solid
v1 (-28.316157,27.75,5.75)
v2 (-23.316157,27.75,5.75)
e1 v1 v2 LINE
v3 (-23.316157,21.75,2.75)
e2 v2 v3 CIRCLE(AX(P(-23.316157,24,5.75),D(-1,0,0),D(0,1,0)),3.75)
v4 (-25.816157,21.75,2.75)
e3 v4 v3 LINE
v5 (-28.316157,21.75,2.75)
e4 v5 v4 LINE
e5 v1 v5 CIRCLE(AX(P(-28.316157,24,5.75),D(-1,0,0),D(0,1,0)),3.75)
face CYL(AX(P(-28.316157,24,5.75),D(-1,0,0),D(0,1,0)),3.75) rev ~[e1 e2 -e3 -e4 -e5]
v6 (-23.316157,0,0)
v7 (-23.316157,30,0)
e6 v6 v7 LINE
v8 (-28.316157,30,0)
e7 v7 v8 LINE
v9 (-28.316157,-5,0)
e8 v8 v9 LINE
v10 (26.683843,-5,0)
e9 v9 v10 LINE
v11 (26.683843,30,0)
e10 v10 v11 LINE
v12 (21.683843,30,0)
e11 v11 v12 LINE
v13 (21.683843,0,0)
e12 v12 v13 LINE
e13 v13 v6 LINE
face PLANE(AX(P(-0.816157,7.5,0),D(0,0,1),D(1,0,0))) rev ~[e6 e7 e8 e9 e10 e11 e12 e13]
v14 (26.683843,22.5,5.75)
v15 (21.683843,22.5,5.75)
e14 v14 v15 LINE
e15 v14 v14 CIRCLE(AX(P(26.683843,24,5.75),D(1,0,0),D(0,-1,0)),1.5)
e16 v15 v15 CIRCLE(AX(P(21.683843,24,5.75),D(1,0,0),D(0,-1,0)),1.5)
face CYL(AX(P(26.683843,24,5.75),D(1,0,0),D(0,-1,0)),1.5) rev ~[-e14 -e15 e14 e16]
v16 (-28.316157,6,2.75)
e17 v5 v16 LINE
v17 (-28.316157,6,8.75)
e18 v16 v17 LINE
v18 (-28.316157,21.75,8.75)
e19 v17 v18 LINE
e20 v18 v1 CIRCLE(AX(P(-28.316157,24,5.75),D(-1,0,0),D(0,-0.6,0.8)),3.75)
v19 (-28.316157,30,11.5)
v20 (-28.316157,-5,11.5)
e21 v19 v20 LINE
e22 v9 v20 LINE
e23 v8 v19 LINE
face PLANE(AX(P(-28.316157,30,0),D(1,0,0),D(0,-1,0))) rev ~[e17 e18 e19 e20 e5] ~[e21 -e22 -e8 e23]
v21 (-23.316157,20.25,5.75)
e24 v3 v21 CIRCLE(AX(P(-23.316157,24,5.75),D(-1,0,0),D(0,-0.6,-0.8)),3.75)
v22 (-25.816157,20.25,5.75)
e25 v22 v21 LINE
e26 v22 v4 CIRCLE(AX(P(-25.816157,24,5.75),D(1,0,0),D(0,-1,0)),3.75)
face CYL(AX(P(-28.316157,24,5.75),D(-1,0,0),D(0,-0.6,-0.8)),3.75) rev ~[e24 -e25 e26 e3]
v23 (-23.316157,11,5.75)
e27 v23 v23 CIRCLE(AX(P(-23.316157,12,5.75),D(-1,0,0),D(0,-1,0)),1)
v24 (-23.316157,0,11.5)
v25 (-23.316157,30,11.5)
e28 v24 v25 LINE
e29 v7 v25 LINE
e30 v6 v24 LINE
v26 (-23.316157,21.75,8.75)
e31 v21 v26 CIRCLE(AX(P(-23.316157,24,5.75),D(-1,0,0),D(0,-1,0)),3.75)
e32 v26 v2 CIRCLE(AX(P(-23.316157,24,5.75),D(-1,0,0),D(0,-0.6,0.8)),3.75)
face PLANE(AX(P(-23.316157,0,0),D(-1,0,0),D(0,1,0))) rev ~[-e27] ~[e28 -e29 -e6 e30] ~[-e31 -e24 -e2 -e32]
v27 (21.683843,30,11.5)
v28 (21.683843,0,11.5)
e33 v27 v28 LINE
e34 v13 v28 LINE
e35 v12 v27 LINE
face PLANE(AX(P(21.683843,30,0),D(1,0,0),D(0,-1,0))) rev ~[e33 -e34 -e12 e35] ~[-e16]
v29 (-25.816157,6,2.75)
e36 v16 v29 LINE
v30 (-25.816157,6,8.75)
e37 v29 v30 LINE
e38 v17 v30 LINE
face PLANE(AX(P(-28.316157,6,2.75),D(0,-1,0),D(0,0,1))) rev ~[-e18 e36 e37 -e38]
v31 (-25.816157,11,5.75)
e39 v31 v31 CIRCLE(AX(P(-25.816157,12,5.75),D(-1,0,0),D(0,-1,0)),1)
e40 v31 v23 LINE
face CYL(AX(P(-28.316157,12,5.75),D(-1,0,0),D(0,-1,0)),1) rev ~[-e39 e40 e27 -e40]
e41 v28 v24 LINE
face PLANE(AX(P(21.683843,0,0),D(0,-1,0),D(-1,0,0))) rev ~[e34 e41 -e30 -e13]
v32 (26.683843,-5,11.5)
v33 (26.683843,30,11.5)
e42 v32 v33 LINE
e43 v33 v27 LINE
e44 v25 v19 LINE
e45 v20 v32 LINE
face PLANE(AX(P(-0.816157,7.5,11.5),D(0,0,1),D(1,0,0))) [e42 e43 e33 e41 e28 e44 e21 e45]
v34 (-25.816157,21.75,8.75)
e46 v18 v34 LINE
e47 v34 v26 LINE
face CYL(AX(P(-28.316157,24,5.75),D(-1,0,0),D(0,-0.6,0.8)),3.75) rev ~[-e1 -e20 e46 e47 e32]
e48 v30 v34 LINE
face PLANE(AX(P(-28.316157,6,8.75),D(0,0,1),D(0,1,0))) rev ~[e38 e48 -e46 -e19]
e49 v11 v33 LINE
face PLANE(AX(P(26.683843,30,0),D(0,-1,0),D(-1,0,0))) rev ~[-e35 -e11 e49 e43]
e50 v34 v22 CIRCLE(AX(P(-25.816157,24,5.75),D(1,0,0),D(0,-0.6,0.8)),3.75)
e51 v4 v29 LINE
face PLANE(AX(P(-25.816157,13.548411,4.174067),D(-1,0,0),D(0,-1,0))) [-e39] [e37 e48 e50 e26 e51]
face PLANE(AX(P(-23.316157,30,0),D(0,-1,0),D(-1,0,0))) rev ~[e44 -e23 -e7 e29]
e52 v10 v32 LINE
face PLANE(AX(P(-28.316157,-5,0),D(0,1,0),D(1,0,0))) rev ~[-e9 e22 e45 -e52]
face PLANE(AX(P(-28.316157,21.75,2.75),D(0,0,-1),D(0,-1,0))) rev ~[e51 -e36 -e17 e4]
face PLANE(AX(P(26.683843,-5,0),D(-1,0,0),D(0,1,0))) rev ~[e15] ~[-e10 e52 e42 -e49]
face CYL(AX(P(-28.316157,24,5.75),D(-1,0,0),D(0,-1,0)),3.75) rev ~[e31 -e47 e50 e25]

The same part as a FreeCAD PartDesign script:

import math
import FreeCAD as App
import Part
import Sketcher

doc = App.newDocument("Part")
params = doc.addObject("Spreadsheet::Sheet", "Params")
for row, (alias, value) in enumerate([
    ("sketch1_width", "45 mm"),
    ("sketch1_width2", "5 mm"),
    ("sketch1_height", "30 mm"),
    ("sketch1_height2", "35 mm"),
    ("pad1_length", "11.5 mm"),
    ("sketch2_diameter", "2 mm"),
    ("sketch2_radius", "3.75 mm"),
    ("pocket1_length", "25 mm"),
    ("sketch3_diameter", "2 mm"),
    ("sketch3_height", "6 mm"),
    ("sketch3_radius", "3.75 mm"),
    ("pocket2_length", "2.5 mm"),
    ("sketch4_diameter", "3 mm"),
    ("pocket3_length", "25 mm"),
], start=1):
    params.set(f"A{row}", alias)
    params.set(f"B{row}", "=" + value)
    params.setAlias(f"B{row}", alias)

body = doc.addObject("PartDesign::Body", "Body")

sketch1 = body.newObject("Sketcher::SketchObject", "Sketch")
sketch1.AttachmentSupport = (doc.getObject("XY_Plane"), [""])
sketch1.MapMode = "FlatFace"
sketch1.addGeometry(Part.LineSegment(App.Vector(22, 0, 0), App.Vector(-23, 0, 0)), False)
sketch1.addGeometry(Part.LineSegment(App.Vector(-23, 0, 0), App.Vector(-23, 30, 0)), False)
sketch1.addGeometry(Part.LineSegment(App.Vector(-23, 30, 0), App.Vector(-28, 30, 0)), False)
sketch1.addGeometry(Part.LineSegment(App.Vector(-28, 30, 0), App.Vector(-28, -5, 0)), False)
sketch1.addGeometry(Part.LineSegment(App.Vector(-28, -5, 0), App.Vector(27, -5, 0)), False)
sketch1.addGeometry(Part.LineSegment(App.Vector(27, -5, 0), App.Vector(27, 30, 0)), False)
sketch1.addGeometry(Part.LineSegment(App.Vector(27, 30, 0), App.Vector(22, 30, 0)), False)
sketch1.addGeometry(Part.LineSegment(App.Vector(22, 30, 0), App.Vector(22, 0, 0)), False)
sketch1.addConstraint(Sketcher.Constraint("Coincident", 0, 2, 1, 1))
sketch1.addConstraint(Sketcher.Constraint("Coincident", 1, 2, 2, 1))
sketch1.addConstraint(Sketcher.Constraint("Coincident", 2, 2, 3, 1))
sketch1.addConstraint(Sketcher.Constraint("Coincident", 3, 2, 4, 1))
sketch1.addConstraint(Sketcher.Constraint("Coincident", 4, 2, 5, 1))
sketch1.addConstraint(Sketcher.Constraint("Coincident", 5, 2, 6, 1))
sketch1.addConstraint(Sketcher.Constraint("Coincident", 6, 2, 7, 1))
sketch1.addConstraint(Sketcher.Constraint("Coincident", 7, 2, 0, 1))
sketch1.addConstraint(Sketcher.Constraint("Horizontal", 0))
sketch1.addConstraint(Sketcher.Constraint("Vertical", 1))
sketch1.addConstraint(Sketcher.Constraint("Horizontal", 2))
sketch1.addConstraint(Sketcher.Constraint("Vertical", 3))
sketch1.addConstraint(Sketcher.Constraint("Horizontal", 4))
sketch1.addConstraint(Sketcher.Constraint("Vertical", 5))
sketch1.addConstraint(Sketcher.Constraint("Horizontal", 6))
sketch1.addConstraint(Sketcher.Constraint("Vertical", 7))
sketch1.addConstraint(Sketcher.Constraint("PointOnObject", 0, 2, -1))
sketch1.addConstraint(Sketcher.Constraint("Horizontal", 2, 2, 5, 2))
sketch1.addConstraint(Sketcher.Constraint("Equal", 2, 6))
sketch1.addConstraint(Sketcher.Constraint("DistanceX", 0, 2, 0, 1, 45.0))
sketch1.addConstraint(Sketcher.Constraint("DistanceX", 2, 2, 2, 1, 5.0))
sketch1.addConstraint(Sketcher.Constraint("DistanceY", 1, 1, 1, 2, 30.0))
sketch1.addConstraint(Sketcher.Constraint("DistanceY", 3, 2, 3, 1, 35.0))
sketch1.addConstraint(Sketcher.Constraint("DistanceX", 0, 2, -1, 1, 23.316157))
sketch1.setExpression("Constraints[19]", "Params.sketch1_width")
sketch1.setExpression("Constraints[20]", "Params.sketch1_width2")
sketch1.setExpression("Constraints[21]", "Params.sketch1_height")
sketch1.setExpression("Constraints[22]", "Params.sketch1_height2")
pad1 = body.newObject("PartDesign::Pad", "Pad")
pad1.Profile = sketch1
pad1.setExpression("Length", "Params.pad1_length")

sketch2 = body.newObject("Sketcher::SketchObject", "Sketch001")
sketch2.AttachmentSupport = (doc.getObject("YZ_Plane"), [""])
sketch2.MapMode = "FlatFace"
sketch2.AttachmentOffset = App.Placement(App.Vector(0, 0, -28.316157), App.Rotation())
sketch2.addGeometry(Part.ArcOfCircle(Part.Circle(App.Vector(24, 5.8, 0), App.Vector(0, 0, 1), 3.8), math.radians(180), math.radians(233)), False)
sketch2.addGeometry(Part.ArcOfCircle(Part.Circle(App.Vector(24, 5.8, 0), App.Vector(0, 0, 1), 3.8), math.radians(127), math.radians(180)), False)
sketch2.addGeometry(Part.ArcOfCircle(Part.Circle(App.Vector(24, 5.8, 0), App.Vector(0, 0, 1), 3.8), math.radians(0), math.radians(127)), False)
sketch2.addGeometry(Part.ArcOfCircle(Part.Circle(App.Vector(24, 5.8, 0), App.Vector(0, 0, 1), 3.8), math.radians(-127), math.radians(0)), False)
sketch2.addGeometry(Part.Circle(App.Vector(12, 5.8, 0), App.Vector(0, 0, 1), 1), False)
sketch2.addConstraint(Sketcher.Constraint("Tangent", 0, 1, 1, 2))
sketch2.addConstraint(Sketcher.Constraint("Tangent", 1, 1, 2, 2))
sketch2.addConstraint(Sketcher.Constraint("Tangent", 2, 1, 3, 2))
sketch2.addConstraint(Sketcher.Constraint("Tangent", 3, 1, 0, 2))
sketch2.addConstraint(Sketcher.Constraint("Equal", 0, 1))
sketch2.addConstraint(Sketcher.Constraint("Horizontal", 3, 3, 4, 3))
sketch2.addConstraint(Sketcher.Constraint("Horizontal", 4, 3, 0, 1))
sketch2.addConstraint(Sketcher.Constraint("Horizontal", 0, 1, 2, 1))
sketch2.addConstraint(Sketcher.Constraint("Vertical", 1, 1, 3, 1))
sketch2.addConstraint(Sketcher.Constraint("Diameter", 4, 2.0))
sketch2.addConstraint(Sketcher.Constraint("Radius", 0, 3.75))
sketch2.addConstraint(Sketcher.Constraint("DistanceX", -1, 1, 0, 3, 24.0))
sketch2.addConstraint(Sketcher.Constraint("DistanceX", -1, 1, 4, 3, 12.0))
sketch2.addConstraint(Sketcher.Constraint("DistanceY", 0, 1, 1, 1, 3.0))
sketch2.addConstraint(Sketcher.Constraint("DistanceY", -1, 1, 0, 3, 5.75))
sketch2.setExpression("Constraints[9]", "Params.sketch2_diameter")
sketch2.setExpression("Constraints[10]", "Params.sketch2_radius")
pocket1 = body.newObject("PartDesign::Pocket", "Pocket")
pocket1.Profile = sketch2
pocket1.setExpression("Length", "Params.pocket1_length")
pocket1.Reversed = True

sketch3 = body.newObject("Sketcher::SketchObject", "Sketch002")
sketch3.AttachmentSupport = (doc.getObject("YZ_Plane"), [""])
sketch3.MapMode = "FlatFace"
sketch3.AttachmentOffset = App.Placement(App.Vector(0, 0, -28.316157), App.Rotation())
sketch3.addGeometry(Part.ArcOfCircle(Part.Circle(App.Vector(24, 5.8, 0), App.Vector(0, 0, 1), 3.8), math.radians(180), math.radians(233)), False)
sketch3.addGeometry(Part.LineSegment(App.Vector(21.8, 2.8, 0), App.Vector(6, 2.8, 0)), False)
sketch3.addGeometry(Part.LineSegment(App.Vector(6, 2.8, 0), App.Vector(6, 8.8, 0)), False)
sketch3.addGeometry(Part.LineSegment(App.Vector(6, 8.8, 0), App.Vector(21.8, 8.8, 0)), False)
sketch3.addGeometry(Part.ArcOfCircle(Part.Circle(App.Vector(24, 5.8, 0), App.Vector(0, 0, 1), 3.8), math.radians(127), math.radians(180)), False)
sketch3.addGeometry(Part.Circle(App.Vector(12, 5.8, 0), App.Vector(0, 0, 1), 1), False)
sketch3.addConstraint(Sketcher.Constraint("Coincident", 0, 2, 1, 1))
sketch3.addConstraint(Sketcher.Constraint("Coincident", 1, 2, 2, 1))
sketch3.addConstraint(Sketcher.Constraint("Coincident", 2, 2, 3, 1))
sketch3.addConstraint(Sketcher.Constraint("Coincident", 3, 2, 4, 1))
sketch3.addConstraint(Sketcher.Constraint("Tangent", 4, 2, 0, 1))
sketch3.addConstraint(Sketcher.Constraint("Horizontal", 1))
sketch3.addConstraint(Sketcher.Constraint("Vertical", 2))
sketch3.addConstraint(Sketcher.Constraint("Horizontal", 3))
sketch3.addConstraint(Sketcher.Constraint("Equal", 0, 4))
sketch3.addConstraint(Sketcher.Constraint("Horizontal", 4, 3, 5, 3))
sketch3.addConstraint(Sketcher.Constraint("Horizontal", 5, 3, 4, 2))
sketch3.addConstraint(Sketcher.Constraint("Vertical", 0, 2, 3, 2))
sketch3.addConstraint(Sketcher.Constraint("Diameter", 5, 2.0))
sketch3.addConstraint(Sketcher.Constraint("DistanceY", 2, 1, 2, 2, 6.0))
sketch3.addConstraint(Sketcher.Constraint("Radius", 0, 3.75))
sketch3.addConstraint(Sketcher.Constraint("DistanceX", -1, 1, 0, 3, 24.0))
sketch3.addConstraint(Sketcher.Constraint("DistanceX", -1, 1, 5, 3, 12.0))
sketch3.addConstraint(Sketcher.Constraint("DistanceX", -1, 1, 1, 2, 6.0))
sketch3.addConstraint(Sketcher.Constraint("DistanceY", -1, 1, 0, 3, 5.75))
sketch3.setExpression("Constraints[12]", "Params.sketch3_diameter")
sketch3.setExpression("Constraints[13]", "Params.sketch3_height")
sketch3.setExpression("Constraints[14]", "Params.sketch3_radius")
pocket2 = body.newObject("PartDesign::Pocket", "Pocket001")
pocket2.Profile = sketch3
pocket2.setExpression("Length", "Params.pocket2_length")
pocket2.Reversed = True

sketch4 = body.newObject("Sketcher::SketchObject", "Sketch003")
sketch4.AttachmentSupport = (doc.getObject("YZ_Plane"), [""])
sketch4.MapMode = "FlatFace"
sketch4.AttachmentOffset = App.Placement(App.Vector(0, 0, 26.683843), App.Rotation())
sketch4.addGeometry(Part.Circle(App.Vector(24, 5.8, 0), App.Vector(0, 0, 1), 1.5), False)
sketch4.addConstraint(Sketcher.Constraint("Diameter", 0, 3.0))
sketch4.addConstraint(Sketcher.Constraint("DistanceX", -1, 1, 0, 3, 24.0))
sketch4.addConstraint(Sketcher.Constraint("DistanceY", -1, 1, 0, 3, 5.75))
sketch4.setExpression("Constraints[0]", "Params.sketch4_diameter")
pocket3 = body.newObject("PartDesign::Pocket", "Pocket002")
pocket3.Profile = sketch4
pocket3.setExpression("Length", "Params.pocket3_length")

doc.recompute()
